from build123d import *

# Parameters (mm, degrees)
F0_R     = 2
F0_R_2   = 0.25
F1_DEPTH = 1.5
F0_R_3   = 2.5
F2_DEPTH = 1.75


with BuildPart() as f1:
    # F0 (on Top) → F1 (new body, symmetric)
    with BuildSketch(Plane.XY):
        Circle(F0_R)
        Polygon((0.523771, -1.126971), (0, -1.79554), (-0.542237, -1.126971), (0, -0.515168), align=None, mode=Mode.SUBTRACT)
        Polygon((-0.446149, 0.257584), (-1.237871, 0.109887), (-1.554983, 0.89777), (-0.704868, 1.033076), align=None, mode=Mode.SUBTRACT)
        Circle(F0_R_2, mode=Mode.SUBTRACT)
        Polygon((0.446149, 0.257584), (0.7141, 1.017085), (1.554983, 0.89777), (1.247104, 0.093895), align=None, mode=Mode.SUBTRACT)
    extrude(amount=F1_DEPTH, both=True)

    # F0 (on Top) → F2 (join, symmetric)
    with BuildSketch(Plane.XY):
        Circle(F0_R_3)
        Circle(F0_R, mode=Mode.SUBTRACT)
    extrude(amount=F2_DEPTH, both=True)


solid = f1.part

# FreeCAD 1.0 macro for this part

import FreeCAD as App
import Part
import Sketcher
Q = App.Units.Quantity


def add_polygon(sketch, points):
    """Adds a closed chain of lines whose ends are joined by coincident constraints."""
    first, n = sketch.GeometryCount, len(points)
    for a, b in zip(points, points[1:] + points[:1]):
        sketch.addGeometry(Part.LineSegment(App.Vector(*a, 0), App.Vector(*b, 0)), False)
    for i in range(n):
        sketch.addConstraint(Sketcher.Constraint("Coincident", first + i, 2, first + (i + 1) % n, 1))

doc = App.newDocument("Part")
body = doc.addObject("PartDesign::Body", "Body")

# Sketch on XY plane
sketch1 = body.newObject("Sketcher::SketchObject", "Sketch")
sketch1.AttachmentSupport = (doc.getObject("XY_Plane"), [""])
sketch1.MapMode = "FlatFace"
sketch1.addGeometry(Part.Circle(App.Vector(0, 0, 0), App.Vector(0, 0, 1), 2), False)  # 0
add_polygon(sketch1, [(0, -0.52), (0.52, -1.13), (0, -1.8), (-0.54, -1.13)])  # lines 1-4
add_polygon(sketch1, [(-0.7, 1.03), (-0.45, 0.26), (-1.24, 0.11), (-1.55, 0.9)])  # lines 5-8
sketch1.addGeometry(Part.Circle(App.Vector(0, 0, 0), App.Vector(0, 0, 1), 0.25), False)  # 9
add_polygon(sketch1, [(1.25, 0.09), (0.45, 0.26), (0.71, 1.02), (1.55, 0.9)])  # lines 10-13
sketch1.addConstraint([
    Sketcher.Constraint("Coincident", 0, 3, -1, 1),
    Sketcher.Constraint("Coincident", 9, 3, -1, 1),
    Sketcher.Constraint("Symmetric", 5, 2, 10, 2, -2),
    Sketcher.Constraint("Symmetric", 7, 2, 12, 2, -2),
    Sketcher.Constraint("PointOnObject", 2, 2, -2),
    Sketcher.Constraint("PointOnObject", 4, 2, -2),
    Sketcher.Constraint("Horizontal", 1, 2, 3, 2),
    Sketcher.Constraint("Equal", 4, 5),
    Sketcher.Constraint("Equal", 1, 6),
    Sketcher.Constraint("Equal", 2, 7),
    Sketcher.Constraint("Equal", 3, 8),
    Sketcher.Constraint("Equal", 5, 10),
    Sketcher.Constraint("Equal", 6, 11),
    Sketcher.Constraint("Equal", 7, 12),
    Sketcher.Constraint("Equal", 8, 13),
    Sketcher.Constraint("Diameter", 0, Q("4 mm")),
    Sketcher.Constraint("Diameter", 9, Q("0.5 mm")),
    Sketcher.Constraint("DistanceX", -1, 1, 11, 2, Q("0.7141 mm")),
    Sketcher.Constraint("DistanceX", 5, 2, 10, 2, Q("0.892298 mm")),
    Sketcher.Constraint("DistanceY", 10, 2, 11, 2, Q("0.759501 mm")),
    Sketcher.Constraint("Distance", 4, Q("0.817511 mm")),
    Sketcher.Constraint("DistanceX", -1, 1, 1, 2, Q("0.523771 mm")),
    Sketcher.Constraint("DistanceY", 1, 2, -1, 1, Q("1.126971 mm")),
    Sketcher.Constraint("DistanceY", 2, 2, -1, 1, Q("1.79554 mm")),
    Sketcher.Constraint("DistanceX", 6, 2, -1, 1, Q("1.237871 mm")),
    Sketcher.Constraint("DistanceY", -1, 1, 7, 2, Q("0.89777 mm")),
])
pad1 = body.newObject("PartDesign::Pad", "Pad")
pad1.Profile = sketch1
pad1.Length = 3
pad1.Midplane = True

# Sketch on XY plane
sketch2 = body.newObject("Sketcher::SketchObject", "Sketch001")
sketch2.AttachmentSupport = (doc.getObject("XY_Plane"), [""])
sketch2.MapMode = "FlatFace"
sketch2.addGeometry([
    Part.Circle(App.Vector(0, 0, 0), App.Vector(0, 0, 1), 2.5),
    Part.Circle(App.Vector(0, 0, 0), App.Vector(0, 0, 1), 2),
], False)
sketch2.addConstraint([
    Sketcher.Constraint("Coincident", 0, 3, -1, 1),
    Sketcher.Constraint("Coincident", 1, 3, -1, 1),
    Sketcher.Constraint("Diameter", 0, Q("5 mm")),
    Sketcher.Constraint("Diameter", 1, Q("4 mm")),
])
pad2 = body.newObject("PartDesign::Pad", "Pad001")
pad2.Profile = sketch2
pad2.Length = 3.5
pad2.Midplane = True

doc.recompute()
